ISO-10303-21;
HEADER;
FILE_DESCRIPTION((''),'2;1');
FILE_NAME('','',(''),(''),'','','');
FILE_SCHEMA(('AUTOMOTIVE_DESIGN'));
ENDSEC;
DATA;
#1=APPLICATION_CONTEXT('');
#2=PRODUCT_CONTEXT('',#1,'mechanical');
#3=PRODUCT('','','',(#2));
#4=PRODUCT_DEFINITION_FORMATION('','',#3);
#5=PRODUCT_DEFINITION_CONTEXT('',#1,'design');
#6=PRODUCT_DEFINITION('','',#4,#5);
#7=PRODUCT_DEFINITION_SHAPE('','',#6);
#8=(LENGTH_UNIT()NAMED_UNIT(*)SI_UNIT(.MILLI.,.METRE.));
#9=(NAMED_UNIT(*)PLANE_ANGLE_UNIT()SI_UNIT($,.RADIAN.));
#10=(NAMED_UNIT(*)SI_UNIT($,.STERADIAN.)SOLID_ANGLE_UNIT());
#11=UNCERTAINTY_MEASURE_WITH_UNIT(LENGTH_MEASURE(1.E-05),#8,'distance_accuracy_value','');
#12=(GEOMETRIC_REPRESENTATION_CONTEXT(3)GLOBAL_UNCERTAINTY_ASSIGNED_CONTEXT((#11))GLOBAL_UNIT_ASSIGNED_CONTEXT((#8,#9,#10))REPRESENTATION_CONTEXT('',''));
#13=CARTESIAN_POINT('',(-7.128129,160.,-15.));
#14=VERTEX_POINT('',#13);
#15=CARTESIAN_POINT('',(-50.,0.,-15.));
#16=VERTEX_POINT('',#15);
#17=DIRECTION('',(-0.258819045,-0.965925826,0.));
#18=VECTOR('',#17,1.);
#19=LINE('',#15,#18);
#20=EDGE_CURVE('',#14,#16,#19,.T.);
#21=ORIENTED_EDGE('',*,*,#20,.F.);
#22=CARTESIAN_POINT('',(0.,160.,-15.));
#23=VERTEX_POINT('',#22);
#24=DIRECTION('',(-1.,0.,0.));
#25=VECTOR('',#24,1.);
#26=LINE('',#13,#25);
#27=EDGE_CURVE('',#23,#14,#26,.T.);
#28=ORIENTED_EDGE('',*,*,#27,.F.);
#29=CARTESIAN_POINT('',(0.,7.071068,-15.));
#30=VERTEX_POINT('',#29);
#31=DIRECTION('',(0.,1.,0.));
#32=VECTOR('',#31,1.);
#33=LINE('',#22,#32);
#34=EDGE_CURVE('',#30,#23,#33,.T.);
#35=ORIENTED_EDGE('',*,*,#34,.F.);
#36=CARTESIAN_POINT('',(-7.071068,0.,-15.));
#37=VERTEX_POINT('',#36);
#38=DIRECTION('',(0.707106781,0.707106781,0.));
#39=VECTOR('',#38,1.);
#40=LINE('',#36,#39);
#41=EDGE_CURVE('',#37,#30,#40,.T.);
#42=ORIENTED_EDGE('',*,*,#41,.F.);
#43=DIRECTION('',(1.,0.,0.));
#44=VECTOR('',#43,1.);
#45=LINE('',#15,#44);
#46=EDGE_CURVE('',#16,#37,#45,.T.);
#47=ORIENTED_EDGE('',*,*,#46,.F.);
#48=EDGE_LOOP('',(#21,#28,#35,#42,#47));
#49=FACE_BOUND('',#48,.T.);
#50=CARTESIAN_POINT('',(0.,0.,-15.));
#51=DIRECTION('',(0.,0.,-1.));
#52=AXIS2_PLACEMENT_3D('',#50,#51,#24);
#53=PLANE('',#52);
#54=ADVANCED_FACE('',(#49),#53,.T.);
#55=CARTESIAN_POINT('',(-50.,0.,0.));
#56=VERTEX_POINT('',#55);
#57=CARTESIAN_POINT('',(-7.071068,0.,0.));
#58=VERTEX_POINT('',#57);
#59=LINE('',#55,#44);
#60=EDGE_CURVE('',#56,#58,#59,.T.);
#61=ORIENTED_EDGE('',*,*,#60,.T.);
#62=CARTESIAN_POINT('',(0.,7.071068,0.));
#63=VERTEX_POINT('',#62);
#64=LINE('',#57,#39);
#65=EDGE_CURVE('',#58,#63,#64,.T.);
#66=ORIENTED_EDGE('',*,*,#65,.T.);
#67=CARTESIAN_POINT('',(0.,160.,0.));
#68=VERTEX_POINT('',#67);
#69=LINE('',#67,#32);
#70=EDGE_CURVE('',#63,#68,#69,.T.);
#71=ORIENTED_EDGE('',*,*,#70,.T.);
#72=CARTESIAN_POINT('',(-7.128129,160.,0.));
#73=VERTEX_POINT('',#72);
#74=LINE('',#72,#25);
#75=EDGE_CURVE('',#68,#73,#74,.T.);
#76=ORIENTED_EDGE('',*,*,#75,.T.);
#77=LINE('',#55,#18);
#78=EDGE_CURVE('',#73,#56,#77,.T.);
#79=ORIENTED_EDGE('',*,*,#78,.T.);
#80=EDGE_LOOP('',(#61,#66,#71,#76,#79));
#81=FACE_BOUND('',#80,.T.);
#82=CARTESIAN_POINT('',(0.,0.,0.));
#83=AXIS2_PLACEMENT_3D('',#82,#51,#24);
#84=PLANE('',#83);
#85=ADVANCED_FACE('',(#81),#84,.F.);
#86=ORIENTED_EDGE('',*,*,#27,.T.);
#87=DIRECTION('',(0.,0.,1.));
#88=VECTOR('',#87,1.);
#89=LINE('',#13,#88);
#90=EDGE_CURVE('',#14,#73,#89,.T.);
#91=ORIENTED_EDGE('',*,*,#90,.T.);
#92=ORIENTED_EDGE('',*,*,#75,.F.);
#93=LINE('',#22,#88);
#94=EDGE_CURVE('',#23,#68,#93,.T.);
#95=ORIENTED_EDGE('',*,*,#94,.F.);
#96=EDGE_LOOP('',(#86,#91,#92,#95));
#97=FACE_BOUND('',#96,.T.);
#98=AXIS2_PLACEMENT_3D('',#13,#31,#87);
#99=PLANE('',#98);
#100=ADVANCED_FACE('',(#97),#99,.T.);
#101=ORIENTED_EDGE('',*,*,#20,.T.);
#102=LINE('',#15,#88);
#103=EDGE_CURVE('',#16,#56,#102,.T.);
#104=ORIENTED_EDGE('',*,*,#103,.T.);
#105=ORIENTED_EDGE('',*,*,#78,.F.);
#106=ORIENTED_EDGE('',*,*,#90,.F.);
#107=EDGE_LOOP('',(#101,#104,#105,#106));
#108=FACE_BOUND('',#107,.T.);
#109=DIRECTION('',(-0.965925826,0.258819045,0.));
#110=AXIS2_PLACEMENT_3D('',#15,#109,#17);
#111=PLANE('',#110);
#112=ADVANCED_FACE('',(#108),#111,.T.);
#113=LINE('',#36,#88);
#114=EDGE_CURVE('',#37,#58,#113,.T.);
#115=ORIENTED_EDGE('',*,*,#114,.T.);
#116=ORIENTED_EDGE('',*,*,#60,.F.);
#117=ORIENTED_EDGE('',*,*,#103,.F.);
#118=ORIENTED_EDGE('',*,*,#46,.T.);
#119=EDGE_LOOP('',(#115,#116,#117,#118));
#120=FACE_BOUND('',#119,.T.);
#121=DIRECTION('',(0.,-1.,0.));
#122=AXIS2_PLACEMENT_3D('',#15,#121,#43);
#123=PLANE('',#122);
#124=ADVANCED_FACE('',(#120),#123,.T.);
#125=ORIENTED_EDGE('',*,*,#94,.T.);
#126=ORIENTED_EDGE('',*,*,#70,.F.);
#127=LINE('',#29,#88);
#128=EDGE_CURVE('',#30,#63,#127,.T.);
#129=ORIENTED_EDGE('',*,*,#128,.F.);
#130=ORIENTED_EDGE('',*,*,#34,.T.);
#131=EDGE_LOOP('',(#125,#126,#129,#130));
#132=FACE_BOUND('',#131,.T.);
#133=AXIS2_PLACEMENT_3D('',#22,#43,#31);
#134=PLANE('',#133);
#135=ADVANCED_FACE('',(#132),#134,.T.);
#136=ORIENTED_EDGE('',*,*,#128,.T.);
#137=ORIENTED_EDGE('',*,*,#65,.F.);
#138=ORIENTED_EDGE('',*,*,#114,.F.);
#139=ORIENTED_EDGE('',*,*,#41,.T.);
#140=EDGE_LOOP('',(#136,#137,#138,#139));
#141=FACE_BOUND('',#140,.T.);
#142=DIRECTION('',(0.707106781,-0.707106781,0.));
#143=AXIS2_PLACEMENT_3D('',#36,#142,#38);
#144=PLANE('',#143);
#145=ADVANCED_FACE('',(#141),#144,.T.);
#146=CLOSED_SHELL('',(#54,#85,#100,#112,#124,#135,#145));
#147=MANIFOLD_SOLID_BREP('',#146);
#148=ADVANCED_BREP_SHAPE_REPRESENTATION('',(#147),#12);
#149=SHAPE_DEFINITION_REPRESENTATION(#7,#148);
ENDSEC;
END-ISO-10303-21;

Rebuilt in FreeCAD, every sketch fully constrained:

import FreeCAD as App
import Part
import Sketcher

V = App.Vector
Q = App.Units.Quantity


def add_polygon(sketch, points):
    """Adds a closed chain of lines whose ends are joined by coincident constraints."""
    first, n = sketch.GeometryCount, len(points)
    for a, b in zip(points, points[1:] + points[:1]):
        sketch.addGeometry(Part.LineSegment(App.Vector(*a, 0), App.Vector(*b, 0)), False)
    for i in range(n):
        sketch.addConstraint(Sketcher.Constraint("Coincident", first + i, 2, first + (i + 1) % n, 1))

doc = App.newDocument("Part")
body = doc.addObject("PartDesign::Body", "Body")

# Sketch on XY plane
sketch1 = doc.addObject("Sketcher::SketchObject", "Sketch")
body.addObject(sketch1)
sketch1.AttachmentSupport = (doc.XY_Plane, [""])
sketch1.MapMode = "FlatFace"
add_polygon(sketch1, [(-50, 0), (-7.071068, 0), (0, 7.071068), (0, 160), (-7.128129, 160)])  # lines 0-4
sketch1.addConstraint([
    Sketcher.Constraint("Horizontal", 0),
    Sketcher.Constraint("Vertical", 2),
    Sketcher.Constraint("Horizontal", 3),
    Sketcher.Constraint("PointOnObject", 0, 2, -1),
    Sketcher.Constraint("PointOnObject", 1, 2, -2),
    Sketcher.Constraint("Angle", 1, Q("45 deg")),
    Sketcher.Constraint("Angle", 4, Q("-105 deg")),
    Sketcher.Constraint("Distance", 1, Q("10 mm")),
    Sketcher.Constraint("DistanceY", -1, 1, 2, 2, Q("160 mm")),
    Sketcher.Constraint("DistanceX", 4, 2, -1, 1, Q("50 mm")),
])
pad1 = doc.addObject("PartDesign::Pad", "Pad")
body.addObject(pad1)
pad1.Profile = sketch1
pad1.Length = 15
pad1.Reversed = True

doc.recompute()
